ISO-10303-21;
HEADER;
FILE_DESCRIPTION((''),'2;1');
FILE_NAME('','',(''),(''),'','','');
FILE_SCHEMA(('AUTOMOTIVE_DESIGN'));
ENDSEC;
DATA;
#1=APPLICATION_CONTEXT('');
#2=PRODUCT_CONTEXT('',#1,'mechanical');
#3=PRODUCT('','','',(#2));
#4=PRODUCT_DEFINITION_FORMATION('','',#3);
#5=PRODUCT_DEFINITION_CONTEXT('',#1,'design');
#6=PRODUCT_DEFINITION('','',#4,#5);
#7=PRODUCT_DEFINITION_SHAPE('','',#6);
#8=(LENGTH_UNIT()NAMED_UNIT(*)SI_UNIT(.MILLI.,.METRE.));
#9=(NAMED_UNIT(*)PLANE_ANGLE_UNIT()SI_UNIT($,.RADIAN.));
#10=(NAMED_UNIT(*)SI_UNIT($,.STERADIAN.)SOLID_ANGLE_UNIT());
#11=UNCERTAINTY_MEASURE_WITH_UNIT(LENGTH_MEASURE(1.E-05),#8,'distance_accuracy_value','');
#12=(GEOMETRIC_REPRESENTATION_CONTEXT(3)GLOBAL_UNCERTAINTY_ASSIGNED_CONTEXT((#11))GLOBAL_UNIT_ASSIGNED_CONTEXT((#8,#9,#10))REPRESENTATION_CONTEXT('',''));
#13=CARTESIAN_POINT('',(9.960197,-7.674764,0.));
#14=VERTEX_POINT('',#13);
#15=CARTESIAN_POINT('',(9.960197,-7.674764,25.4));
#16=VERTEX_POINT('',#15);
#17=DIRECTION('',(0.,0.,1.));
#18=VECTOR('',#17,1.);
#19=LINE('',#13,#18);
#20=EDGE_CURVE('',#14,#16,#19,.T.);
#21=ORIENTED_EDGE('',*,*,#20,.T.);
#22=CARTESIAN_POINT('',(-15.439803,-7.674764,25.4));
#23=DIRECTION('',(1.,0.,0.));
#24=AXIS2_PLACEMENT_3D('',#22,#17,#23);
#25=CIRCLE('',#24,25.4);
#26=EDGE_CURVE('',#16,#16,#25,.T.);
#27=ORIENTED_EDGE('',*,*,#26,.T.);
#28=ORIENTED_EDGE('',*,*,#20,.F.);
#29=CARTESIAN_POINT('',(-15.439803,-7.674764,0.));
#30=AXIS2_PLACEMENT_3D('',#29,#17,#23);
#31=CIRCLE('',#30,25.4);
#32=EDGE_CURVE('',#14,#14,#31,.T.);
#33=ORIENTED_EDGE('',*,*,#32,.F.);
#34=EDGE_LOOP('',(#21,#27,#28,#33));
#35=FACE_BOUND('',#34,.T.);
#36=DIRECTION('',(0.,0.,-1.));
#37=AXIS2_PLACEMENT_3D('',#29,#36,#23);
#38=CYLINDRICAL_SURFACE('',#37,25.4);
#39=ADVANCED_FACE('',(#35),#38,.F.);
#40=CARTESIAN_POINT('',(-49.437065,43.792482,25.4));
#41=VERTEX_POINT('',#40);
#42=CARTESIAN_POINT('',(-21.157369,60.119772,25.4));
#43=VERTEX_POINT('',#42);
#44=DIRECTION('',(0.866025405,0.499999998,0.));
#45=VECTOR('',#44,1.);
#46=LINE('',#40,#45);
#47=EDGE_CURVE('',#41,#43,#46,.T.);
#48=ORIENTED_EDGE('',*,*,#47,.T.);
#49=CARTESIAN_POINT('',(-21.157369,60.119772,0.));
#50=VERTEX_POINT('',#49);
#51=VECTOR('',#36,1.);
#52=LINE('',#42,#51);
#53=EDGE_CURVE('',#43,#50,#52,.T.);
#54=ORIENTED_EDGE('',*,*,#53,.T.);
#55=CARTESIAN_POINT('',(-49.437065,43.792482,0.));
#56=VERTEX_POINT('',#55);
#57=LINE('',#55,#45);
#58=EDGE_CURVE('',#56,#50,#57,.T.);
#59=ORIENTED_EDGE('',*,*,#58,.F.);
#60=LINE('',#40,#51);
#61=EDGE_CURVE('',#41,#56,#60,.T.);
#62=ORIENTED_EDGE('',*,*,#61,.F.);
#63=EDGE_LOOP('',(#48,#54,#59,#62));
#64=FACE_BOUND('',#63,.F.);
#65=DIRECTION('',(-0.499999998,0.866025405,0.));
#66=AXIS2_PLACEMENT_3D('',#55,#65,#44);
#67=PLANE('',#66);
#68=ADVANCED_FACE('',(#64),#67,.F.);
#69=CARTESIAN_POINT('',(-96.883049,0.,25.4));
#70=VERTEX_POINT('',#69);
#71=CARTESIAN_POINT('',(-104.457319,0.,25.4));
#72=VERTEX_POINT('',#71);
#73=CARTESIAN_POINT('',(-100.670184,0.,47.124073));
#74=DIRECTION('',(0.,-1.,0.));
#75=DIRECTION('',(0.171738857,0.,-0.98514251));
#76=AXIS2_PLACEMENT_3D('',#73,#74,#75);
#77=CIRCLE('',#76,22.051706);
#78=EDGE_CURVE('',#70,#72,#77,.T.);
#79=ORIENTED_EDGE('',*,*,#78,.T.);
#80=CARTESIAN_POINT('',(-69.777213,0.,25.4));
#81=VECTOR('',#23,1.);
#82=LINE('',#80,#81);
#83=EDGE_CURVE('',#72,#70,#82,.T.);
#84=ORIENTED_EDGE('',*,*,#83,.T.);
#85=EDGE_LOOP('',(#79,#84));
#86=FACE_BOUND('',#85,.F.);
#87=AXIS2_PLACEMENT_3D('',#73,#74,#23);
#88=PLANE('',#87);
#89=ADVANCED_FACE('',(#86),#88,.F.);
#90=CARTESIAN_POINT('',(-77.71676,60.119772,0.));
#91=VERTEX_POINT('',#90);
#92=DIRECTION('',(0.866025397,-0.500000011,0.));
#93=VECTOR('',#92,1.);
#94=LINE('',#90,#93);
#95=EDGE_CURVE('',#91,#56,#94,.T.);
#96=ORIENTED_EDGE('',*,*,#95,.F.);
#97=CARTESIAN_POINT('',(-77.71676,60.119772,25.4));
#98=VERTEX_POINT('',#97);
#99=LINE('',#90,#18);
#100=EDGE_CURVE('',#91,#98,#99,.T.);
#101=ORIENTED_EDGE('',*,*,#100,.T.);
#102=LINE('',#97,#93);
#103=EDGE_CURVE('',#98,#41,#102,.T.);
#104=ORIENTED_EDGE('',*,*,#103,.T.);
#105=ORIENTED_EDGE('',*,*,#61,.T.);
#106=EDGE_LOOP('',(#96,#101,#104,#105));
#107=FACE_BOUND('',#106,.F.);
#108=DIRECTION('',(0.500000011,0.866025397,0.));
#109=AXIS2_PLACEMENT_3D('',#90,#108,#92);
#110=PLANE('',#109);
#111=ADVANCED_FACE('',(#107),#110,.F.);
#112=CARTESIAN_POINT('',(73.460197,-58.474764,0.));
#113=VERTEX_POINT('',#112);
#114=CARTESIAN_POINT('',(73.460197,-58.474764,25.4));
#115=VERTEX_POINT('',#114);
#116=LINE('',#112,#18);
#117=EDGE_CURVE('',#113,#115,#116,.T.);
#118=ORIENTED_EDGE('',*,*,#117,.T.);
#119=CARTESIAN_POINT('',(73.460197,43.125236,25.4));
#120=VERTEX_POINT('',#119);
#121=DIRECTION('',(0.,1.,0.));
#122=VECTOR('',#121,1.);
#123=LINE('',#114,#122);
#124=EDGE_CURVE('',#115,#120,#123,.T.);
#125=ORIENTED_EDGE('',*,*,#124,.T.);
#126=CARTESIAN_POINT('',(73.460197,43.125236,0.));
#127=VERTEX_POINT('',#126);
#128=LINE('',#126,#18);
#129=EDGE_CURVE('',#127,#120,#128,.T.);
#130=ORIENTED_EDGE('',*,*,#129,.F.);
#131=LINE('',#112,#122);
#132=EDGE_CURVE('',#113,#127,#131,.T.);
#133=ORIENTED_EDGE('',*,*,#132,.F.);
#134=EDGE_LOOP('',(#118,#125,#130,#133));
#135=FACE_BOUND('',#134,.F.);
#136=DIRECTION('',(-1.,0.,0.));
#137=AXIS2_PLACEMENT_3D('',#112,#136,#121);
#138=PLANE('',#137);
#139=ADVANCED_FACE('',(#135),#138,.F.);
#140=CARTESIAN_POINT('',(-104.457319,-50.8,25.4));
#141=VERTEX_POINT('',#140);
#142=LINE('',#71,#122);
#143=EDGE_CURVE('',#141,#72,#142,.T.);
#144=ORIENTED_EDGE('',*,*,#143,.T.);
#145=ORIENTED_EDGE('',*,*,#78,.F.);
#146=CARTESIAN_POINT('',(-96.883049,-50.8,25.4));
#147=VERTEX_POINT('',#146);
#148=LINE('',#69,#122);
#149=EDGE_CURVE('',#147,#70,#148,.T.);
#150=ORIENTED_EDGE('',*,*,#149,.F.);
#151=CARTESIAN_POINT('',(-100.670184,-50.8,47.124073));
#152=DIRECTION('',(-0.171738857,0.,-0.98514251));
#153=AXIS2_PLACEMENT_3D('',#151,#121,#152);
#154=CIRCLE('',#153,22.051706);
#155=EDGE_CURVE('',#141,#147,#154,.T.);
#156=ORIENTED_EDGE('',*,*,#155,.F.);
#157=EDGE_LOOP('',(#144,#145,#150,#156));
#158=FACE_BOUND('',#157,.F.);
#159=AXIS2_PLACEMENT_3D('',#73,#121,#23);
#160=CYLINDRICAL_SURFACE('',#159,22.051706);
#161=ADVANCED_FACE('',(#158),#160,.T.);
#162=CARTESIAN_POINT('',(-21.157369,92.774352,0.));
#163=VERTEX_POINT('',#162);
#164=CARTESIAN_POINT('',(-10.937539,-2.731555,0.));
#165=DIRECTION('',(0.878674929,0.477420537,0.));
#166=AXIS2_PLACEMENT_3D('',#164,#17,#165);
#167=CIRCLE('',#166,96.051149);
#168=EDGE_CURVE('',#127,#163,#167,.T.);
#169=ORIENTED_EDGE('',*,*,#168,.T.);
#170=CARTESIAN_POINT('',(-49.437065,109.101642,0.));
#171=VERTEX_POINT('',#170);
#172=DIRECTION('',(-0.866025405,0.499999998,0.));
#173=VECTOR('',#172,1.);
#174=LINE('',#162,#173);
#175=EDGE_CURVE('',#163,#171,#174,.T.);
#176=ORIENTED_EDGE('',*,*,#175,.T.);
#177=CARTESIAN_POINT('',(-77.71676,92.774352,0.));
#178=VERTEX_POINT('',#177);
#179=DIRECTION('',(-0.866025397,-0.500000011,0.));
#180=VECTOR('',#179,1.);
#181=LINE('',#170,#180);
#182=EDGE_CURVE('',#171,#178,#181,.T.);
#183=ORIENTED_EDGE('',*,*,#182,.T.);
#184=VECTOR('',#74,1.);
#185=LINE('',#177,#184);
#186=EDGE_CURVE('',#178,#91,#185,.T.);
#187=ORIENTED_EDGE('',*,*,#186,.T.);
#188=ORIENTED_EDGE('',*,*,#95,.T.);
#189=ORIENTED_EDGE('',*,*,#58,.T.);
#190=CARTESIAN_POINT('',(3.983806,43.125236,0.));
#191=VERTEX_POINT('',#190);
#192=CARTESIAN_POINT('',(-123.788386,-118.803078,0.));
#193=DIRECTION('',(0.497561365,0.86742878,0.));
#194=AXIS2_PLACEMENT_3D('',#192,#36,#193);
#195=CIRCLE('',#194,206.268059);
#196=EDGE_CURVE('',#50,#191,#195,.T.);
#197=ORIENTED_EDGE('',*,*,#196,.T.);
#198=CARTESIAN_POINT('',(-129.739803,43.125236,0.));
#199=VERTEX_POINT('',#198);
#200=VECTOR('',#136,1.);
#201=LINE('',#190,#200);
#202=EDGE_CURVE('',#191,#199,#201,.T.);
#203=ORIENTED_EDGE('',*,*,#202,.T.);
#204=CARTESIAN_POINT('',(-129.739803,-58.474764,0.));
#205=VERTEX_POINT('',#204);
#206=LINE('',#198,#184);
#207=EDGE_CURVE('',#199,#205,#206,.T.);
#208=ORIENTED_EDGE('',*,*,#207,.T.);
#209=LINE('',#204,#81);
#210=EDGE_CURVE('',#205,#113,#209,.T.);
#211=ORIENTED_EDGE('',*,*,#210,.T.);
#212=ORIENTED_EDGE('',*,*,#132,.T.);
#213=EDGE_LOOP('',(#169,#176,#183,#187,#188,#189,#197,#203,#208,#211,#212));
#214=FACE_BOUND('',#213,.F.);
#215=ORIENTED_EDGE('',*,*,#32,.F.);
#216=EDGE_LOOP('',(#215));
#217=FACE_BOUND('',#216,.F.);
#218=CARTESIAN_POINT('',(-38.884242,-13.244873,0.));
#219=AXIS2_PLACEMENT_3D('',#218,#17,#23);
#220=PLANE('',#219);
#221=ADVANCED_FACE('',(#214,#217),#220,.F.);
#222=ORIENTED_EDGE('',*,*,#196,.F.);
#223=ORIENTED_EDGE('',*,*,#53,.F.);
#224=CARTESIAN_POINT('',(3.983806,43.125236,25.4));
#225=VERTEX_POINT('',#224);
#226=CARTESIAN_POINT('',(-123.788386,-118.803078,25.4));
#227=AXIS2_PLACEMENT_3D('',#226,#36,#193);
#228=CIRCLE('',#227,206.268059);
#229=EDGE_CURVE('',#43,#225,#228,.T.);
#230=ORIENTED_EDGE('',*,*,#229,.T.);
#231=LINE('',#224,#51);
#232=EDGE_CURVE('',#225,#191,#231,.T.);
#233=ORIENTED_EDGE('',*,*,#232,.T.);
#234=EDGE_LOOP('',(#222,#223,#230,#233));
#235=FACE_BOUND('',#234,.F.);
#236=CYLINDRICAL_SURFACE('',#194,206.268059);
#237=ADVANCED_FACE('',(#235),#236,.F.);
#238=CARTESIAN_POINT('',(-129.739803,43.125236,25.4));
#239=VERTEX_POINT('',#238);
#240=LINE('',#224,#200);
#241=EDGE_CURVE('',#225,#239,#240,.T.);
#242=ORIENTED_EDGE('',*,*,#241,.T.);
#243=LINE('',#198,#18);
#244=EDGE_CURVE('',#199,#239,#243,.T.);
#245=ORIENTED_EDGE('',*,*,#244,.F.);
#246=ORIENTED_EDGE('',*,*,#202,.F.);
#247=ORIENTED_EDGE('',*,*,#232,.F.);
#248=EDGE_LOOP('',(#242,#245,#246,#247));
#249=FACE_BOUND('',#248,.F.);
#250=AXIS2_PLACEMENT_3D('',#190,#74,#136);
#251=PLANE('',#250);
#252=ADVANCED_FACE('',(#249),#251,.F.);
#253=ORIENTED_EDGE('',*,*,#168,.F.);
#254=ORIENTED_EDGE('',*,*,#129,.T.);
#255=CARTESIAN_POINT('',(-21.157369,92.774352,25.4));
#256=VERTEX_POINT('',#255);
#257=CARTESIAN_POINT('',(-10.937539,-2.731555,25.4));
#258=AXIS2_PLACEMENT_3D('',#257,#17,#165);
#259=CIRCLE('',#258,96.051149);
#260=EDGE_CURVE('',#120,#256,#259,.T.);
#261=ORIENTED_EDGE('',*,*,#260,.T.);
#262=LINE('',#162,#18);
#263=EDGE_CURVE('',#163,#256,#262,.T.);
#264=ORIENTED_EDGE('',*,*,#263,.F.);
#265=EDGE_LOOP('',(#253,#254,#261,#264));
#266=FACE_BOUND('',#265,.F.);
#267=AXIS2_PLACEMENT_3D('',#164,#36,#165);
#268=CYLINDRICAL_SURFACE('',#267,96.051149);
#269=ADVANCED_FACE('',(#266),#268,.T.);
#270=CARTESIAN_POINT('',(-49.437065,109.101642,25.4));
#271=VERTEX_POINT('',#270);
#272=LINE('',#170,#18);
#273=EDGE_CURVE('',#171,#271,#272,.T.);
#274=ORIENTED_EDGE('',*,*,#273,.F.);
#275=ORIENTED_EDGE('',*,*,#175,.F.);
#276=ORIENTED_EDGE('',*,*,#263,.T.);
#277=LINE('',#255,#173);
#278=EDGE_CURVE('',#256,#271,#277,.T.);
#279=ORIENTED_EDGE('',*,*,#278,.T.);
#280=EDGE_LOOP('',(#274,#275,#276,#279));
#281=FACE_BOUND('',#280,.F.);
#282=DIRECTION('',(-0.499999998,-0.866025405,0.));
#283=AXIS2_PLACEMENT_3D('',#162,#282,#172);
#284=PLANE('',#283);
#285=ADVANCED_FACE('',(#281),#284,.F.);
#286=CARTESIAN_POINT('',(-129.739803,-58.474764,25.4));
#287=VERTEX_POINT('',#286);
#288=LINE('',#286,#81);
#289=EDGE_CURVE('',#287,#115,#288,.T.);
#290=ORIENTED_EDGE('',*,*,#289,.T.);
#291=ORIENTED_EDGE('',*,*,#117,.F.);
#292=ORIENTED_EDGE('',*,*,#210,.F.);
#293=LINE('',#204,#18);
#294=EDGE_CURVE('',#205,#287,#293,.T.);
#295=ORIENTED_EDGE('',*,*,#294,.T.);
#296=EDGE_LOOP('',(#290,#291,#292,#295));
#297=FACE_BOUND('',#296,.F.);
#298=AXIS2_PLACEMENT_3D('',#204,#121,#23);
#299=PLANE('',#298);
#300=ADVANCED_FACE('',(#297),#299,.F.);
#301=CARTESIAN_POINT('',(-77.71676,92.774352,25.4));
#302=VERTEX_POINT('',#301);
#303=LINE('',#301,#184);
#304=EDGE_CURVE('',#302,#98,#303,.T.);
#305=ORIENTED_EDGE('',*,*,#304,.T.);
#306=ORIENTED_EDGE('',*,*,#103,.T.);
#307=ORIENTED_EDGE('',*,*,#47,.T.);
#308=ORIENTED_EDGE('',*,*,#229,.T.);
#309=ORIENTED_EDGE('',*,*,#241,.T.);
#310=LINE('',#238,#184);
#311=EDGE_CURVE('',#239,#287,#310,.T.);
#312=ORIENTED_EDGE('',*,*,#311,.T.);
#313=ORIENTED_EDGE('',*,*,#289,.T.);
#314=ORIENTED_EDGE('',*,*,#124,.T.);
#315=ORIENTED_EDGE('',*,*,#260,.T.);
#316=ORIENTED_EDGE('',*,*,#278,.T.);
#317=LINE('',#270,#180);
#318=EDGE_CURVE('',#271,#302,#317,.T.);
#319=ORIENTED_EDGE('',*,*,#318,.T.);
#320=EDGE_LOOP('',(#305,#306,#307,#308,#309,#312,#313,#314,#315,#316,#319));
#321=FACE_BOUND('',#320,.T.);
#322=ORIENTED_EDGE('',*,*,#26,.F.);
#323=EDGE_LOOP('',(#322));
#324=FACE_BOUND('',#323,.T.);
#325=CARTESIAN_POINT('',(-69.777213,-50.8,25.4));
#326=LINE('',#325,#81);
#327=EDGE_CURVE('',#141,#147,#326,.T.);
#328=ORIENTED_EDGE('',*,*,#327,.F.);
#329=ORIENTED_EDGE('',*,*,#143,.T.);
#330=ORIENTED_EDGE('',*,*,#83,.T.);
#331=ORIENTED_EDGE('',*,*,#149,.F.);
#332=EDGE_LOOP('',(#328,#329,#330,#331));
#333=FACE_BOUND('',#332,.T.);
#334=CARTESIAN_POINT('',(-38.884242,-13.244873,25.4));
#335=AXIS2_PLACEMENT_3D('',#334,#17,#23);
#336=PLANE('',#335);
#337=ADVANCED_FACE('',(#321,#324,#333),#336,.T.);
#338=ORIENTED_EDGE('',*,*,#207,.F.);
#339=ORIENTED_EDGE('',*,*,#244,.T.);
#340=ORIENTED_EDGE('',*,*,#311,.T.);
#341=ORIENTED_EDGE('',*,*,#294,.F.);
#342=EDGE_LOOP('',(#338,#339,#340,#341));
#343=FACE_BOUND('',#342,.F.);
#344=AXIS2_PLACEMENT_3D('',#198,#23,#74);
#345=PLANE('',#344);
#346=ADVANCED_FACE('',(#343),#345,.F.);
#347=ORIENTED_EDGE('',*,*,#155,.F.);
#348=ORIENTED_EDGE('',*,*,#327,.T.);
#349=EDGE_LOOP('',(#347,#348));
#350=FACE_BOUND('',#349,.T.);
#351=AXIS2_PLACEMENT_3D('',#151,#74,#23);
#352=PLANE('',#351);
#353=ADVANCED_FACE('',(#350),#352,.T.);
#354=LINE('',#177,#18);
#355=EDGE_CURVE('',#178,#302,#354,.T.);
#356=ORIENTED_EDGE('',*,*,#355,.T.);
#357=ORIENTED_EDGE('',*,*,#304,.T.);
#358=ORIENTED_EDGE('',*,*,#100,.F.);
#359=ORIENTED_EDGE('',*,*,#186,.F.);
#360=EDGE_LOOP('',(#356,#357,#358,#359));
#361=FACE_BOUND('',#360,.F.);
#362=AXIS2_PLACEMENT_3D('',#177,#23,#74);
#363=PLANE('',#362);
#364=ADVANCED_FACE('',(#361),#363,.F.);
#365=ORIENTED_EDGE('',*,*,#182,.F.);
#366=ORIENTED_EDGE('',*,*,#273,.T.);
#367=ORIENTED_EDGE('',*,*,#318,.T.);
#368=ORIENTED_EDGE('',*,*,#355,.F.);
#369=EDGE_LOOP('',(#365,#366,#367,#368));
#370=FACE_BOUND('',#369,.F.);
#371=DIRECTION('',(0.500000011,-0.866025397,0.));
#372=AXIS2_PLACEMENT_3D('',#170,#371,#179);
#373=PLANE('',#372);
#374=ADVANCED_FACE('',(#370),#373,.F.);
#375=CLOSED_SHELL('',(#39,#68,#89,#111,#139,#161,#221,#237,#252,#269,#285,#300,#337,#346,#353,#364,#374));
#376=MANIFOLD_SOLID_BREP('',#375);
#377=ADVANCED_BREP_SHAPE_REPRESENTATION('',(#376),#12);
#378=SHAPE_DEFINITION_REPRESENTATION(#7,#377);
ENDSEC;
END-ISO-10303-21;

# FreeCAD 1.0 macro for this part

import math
import FreeCAD as App
import Part
import Sketcher

V = App.Vector
Q = App.Units.Quantity

doc = App.newDocument("Part")
body = doc.addObject("PartDesign::Body", "Body")

sketch1 = body.newObject("Sketcher::SketchObject", "Sketch")
sketch1.AttachmentSupport = (doc.getObject("XY_Plane"), [""])
sketch1.MapMode = "FlatFace"
sketch1.addGeometry([
    Part.LineSegment(V(4, 43, 0), V(-130, 43, 0)),
    Part.LineSegment(V(-130, 43, 0), V(-130, -58, 0)),
    Part.LineSegment(V(-130, -58, 0), V(73, -58, 0)),
    Part.LineSegment(V(73, -58, 0), V(73, 43, 0)),
    Part.ArcOfCircle(Part.Circle(V(-11, -3, 0), V(0, 0, 1), 96), math.radians(29), math.radians(96)),
    Part.LineSegment(V(-21, 93, 0), V(-49, 109, 0)),
    Part.LineSegment(V(-49, 109, 0), V(-78, 93, 0)),
    Part.LineSegment(V(-78, 93, 0), V(-78, 60, 0)),
    Part.LineSegment(V(-78, 60, 0), V(-49, 44, 0)),
    Part.LineSegment(V(-49, 44, 0), V(-21, 60, 0)),
    Part.ArcOfCircle(Part.Circle(V(-124, -119, 0), V(0, 0, 1), 206), math.radians(51.72), math.radians(60.16)),
    Part.Circle(V(-15, -8, 0), V(0, 0, 1), 25),
], False)
sketch1.addConstraint([
    Sketcher.Constraint("Coincident", 0, 2, 1, 1),
    Sketcher.Constraint("Coincident", 1, 2, 2, 1),
    Sketcher.Constraint("Coincident", 2, 2, 3, 1),
    Sketcher.Constraint("Coincident", 3, 2, 4, 1),
    Sketcher.Constraint("Coincident", 4, 2, 5, 1),
    Sketcher.Constraint("Coincident", 5, 2, 6, 1),
    Sketcher.Constraint("Coincident", 6, 2, 7, 1),
    Sketcher.Constraint("Coincident", 7, 2, 8, 1),
    Sketcher.Constraint("Coincident", 8, 2, 9, 1),
    Sketcher.Constraint("Coincident", 9, 2, 10, 2),
    Sketcher.Constraint("Coincident", 10, 1, 0, 1),
    Sketcher.Constraint("Horizontal", 0),
    Sketcher.Constraint("Vertical", 1),
    Sketcher.Constraint("Horizontal", 2),
    Sketcher.Constraint("Vertical", 3),
    Sketcher.Constraint("Vertical", 7),
    Sketcher.Constraint("Parallel", 5, 8),
    Sketcher.Constraint("Parallel", 6, 9),
    Sketcher.Constraint("Horizontal", 0, 2, 3, 2),
    Sketcher.Constraint("Horizontal", 4, 2, 6, 2),
    Sketcher.Constraint("Horizontal", 7, 2, 9, 2),
    Sketcher.Constraint("Vertical", 5, 2, 8, 2),
    Sketcher.Constraint("Vertical", 4, 2, 9, 2),
    Sketcher.Constraint("Diameter", 11, Q("2 in")),
    Sketcher.Constraint("DistanceX", 2, 1, 2, 2, Q("8 in")),
    Sketcher.Constraint("DistanceY", 1, 2, 1, 1, Q("4 in")),
    Sketcher.Constraint("Angle", 5, Q("150 deg")),
    Sketcher.Constraint("DistanceY", 11, 3, 0, 2, Q("2 in")),
    Sketcher.Constraint("DistanceX", 0, 2, 11, 3, Q("4.5 in")),
    Sketcher.Constraint("Radius", 4, 96.051149),
    Sketcher.Constraint("Radius", 10, 206.268059),
    Sketcher.Constraint("DistanceX", 0, 2, 0, 1, 133.723609),
    Sketcher.Constraint("DistanceY", 7, 2, 7, 1, 32.65458),
    Sketcher.Constraint("Distance", 5, 32.65458),
    Sketcher.Constraint("DistanceX", 4, 3, -1, 1, 10.937539),
    Sketcher.Constraint("DistanceY", 10, 3, -1, 1, 118.803078),
    Sketcher.Constraint("DistanceX", 4, 2, -1, 1, 21.157369),
    Sketcher.Constraint("DistanceY", -1, 1, 4, 2, 92.774352),
])
pad1 = body.newObject("PartDesign::Pad", "Pad")
pad1.Profile = sketch1
pad1.Length = Q("0.5 in")

sketch2 = body.newObject("Sketcher::SketchObject", "Sketch001")
sketch2.AttachmentSupport = (doc.getObject("XY_Plane"), [""])
sketch2.MapMode = "FlatFace"
sketch2.addGeometry([
    Part.LineSegment(V(4, 43, 0), V(-130, 43, 0)),
    Part.LineSegment(V(-130, 43, 0), V(-130, -58, 0)),
    Part.LineSegment(V(-130, -58, 0), V(73, -58, 0)),
    Part.LineSegment(V(73, -58, 0), V(73, 43, 0)),
    Part.ArcOfCircle(Part.Circle(V(-11, -3, 0), V(0, 0, 1), 96), math.radians(29), math.radians(96)),
    Part.LineSegment(V(-21, 93, 0), V(-49, 109, 0)),
    Part.LineSegment(V(-49, 109, 0), V(-78, 93, 0)),
    Part.LineSegment(V(-78, 93, 0), V(-78, 60, 0)),
    Part.LineSegment(V(-78, 60, 0), V(-49, 44, 0)),
    Part.LineSegment(V(-49, 44, 0), V(-21, 60, 0)),
    Part.ArcOfCircle(Part.Circle(V(-124, -119, 0), V(0, 0, 1), 206), math.radians(51.72), math.radians(60.16)),
    Part.Circle(V(-15, -8, 0), V(0, 0, 1), 25),
], False)
sketch2.addConstraint([
    Sketcher.Constraint("Coincident", 0, 2, 1, 1),
    Sketcher.Constraint("Coincident", 1, 2, 2, 1),
    Sketcher.Constraint("Coincident", 2, 2, 3, 1),
    Sketcher.Constraint("Coincident", 3, 2, 4, 1),
    Sketcher.Constraint("Coincident", 4, 2, 5, 1),
    Sketcher.Constraint("Coincident", 5, 2, 6, 1),
    Sketcher.Constraint("Coincident", 6, 2, 7, 1),
    Sketcher.Constraint("Coincident", 7, 2, 8, 1),
    Sketcher.Constraint("Coincident", 8, 2, 9, 1),
    Sketcher.Constraint("Coincident", 9, 2, 10, 2),
    Sketcher.Constraint("Coincident", 10, 1, 0, 1),
    Sketcher.Constraint("Horizontal", 0),
    Sketcher.Constraint("Vertical", 1),
    Sketcher.Constraint("Horizontal", 2),
    Sketcher.Constraint("Vertical", 3),
    Sketcher.Constraint("Vertical", 7),
    Sketcher.Constraint("Parallel", 5, 8),
    Sketcher.Constraint("Parallel", 6, 9),
    Sketcher.Constraint("Horizontal", 0, 2, 3, 2),
    Sketcher.Constraint("Horizontal", 4, 2, 6, 2),
    Sketcher.Constraint("Horizontal", 7, 2, 9, 2),
    Sketcher.Constraint("Vertical", 5, 2, 8, 2),
    Sketcher.Constraint("Vertical", 4, 2, 9, 2),
    Sketcher.Constraint("Diameter", 11, Q("2 in")),
    Sketcher.Constraint("DistanceX", 2, 1, 2, 2, Q("8 in")),
    Sketcher.Constraint("DistanceY", 1, 2, 1, 1, Q("4 in")),
    Sketcher.Constraint("Angle", 5, Q("150 deg")),
    Sketcher.Constraint("DistanceY", 11, 3, 0, 2, Q("2 in")),
    Sketcher.Constraint("DistanceX", 0, 2, 11, 3, Q("4.5 in")),
    Sketcher.Constraint("Radius", 4, 96.051149),
    Sketcher.Constraint("Radius", 10, 206.268059),
    Sketcher.Constraint("DistanceX", 0, 2, 0, 1, 133.723609),
    Sketcher.Constraint("DistanceY", 7, 2, 7, 1, 32.65458),
    Sketcher.Constraint("Distance", 5, 32.65458),
    Sketcher.Constraint("DistanceX", 4, 3, -1, 1, 10.937539),
    Sketcher.Constraint("DistanceY", 10, 3, -1, 1, 118.803078),
    Sketcher.Constraint("DistanceX", 4, 2, -1, 1, 21.157369),
    Sketcher.Constraint("DistanceY", -1, 1, 4, 2, 92.774352),
])
pad2 = body.newObject("PartDesign::Pad", "Pad001")
pad2.Profile = sketch2
pad2.Length = Q("1 in")

sketch3 = body.newObject("Sketcher::SketchObject", "Sketch002")
sketch3.AttachmentSupport = (doc.getObject("XZ_Plane"), [""])
sketch3.MapMode = "FlatFace"
sketch3.addGeometry(Part.Circle(V(-101, 47, 0), V(0, 0, 1), 22), False)
sketch3.addConstraint([
    Sketcher.Constraint("Diameter", 0, 44.103412),
    Sketcher.Constraint("DistanceX", 0, 3, -1, 1, 100.670184),
    Sketcher.Constraint("DistanceY", -1, 1, 0, 3, 47.124073),
])
pad3 = body.newObject("PartDesign::Pad", "Pad002")
pad3.Profile = sketch3
pad3.Length = Q("2 in")

doc.recompute()
